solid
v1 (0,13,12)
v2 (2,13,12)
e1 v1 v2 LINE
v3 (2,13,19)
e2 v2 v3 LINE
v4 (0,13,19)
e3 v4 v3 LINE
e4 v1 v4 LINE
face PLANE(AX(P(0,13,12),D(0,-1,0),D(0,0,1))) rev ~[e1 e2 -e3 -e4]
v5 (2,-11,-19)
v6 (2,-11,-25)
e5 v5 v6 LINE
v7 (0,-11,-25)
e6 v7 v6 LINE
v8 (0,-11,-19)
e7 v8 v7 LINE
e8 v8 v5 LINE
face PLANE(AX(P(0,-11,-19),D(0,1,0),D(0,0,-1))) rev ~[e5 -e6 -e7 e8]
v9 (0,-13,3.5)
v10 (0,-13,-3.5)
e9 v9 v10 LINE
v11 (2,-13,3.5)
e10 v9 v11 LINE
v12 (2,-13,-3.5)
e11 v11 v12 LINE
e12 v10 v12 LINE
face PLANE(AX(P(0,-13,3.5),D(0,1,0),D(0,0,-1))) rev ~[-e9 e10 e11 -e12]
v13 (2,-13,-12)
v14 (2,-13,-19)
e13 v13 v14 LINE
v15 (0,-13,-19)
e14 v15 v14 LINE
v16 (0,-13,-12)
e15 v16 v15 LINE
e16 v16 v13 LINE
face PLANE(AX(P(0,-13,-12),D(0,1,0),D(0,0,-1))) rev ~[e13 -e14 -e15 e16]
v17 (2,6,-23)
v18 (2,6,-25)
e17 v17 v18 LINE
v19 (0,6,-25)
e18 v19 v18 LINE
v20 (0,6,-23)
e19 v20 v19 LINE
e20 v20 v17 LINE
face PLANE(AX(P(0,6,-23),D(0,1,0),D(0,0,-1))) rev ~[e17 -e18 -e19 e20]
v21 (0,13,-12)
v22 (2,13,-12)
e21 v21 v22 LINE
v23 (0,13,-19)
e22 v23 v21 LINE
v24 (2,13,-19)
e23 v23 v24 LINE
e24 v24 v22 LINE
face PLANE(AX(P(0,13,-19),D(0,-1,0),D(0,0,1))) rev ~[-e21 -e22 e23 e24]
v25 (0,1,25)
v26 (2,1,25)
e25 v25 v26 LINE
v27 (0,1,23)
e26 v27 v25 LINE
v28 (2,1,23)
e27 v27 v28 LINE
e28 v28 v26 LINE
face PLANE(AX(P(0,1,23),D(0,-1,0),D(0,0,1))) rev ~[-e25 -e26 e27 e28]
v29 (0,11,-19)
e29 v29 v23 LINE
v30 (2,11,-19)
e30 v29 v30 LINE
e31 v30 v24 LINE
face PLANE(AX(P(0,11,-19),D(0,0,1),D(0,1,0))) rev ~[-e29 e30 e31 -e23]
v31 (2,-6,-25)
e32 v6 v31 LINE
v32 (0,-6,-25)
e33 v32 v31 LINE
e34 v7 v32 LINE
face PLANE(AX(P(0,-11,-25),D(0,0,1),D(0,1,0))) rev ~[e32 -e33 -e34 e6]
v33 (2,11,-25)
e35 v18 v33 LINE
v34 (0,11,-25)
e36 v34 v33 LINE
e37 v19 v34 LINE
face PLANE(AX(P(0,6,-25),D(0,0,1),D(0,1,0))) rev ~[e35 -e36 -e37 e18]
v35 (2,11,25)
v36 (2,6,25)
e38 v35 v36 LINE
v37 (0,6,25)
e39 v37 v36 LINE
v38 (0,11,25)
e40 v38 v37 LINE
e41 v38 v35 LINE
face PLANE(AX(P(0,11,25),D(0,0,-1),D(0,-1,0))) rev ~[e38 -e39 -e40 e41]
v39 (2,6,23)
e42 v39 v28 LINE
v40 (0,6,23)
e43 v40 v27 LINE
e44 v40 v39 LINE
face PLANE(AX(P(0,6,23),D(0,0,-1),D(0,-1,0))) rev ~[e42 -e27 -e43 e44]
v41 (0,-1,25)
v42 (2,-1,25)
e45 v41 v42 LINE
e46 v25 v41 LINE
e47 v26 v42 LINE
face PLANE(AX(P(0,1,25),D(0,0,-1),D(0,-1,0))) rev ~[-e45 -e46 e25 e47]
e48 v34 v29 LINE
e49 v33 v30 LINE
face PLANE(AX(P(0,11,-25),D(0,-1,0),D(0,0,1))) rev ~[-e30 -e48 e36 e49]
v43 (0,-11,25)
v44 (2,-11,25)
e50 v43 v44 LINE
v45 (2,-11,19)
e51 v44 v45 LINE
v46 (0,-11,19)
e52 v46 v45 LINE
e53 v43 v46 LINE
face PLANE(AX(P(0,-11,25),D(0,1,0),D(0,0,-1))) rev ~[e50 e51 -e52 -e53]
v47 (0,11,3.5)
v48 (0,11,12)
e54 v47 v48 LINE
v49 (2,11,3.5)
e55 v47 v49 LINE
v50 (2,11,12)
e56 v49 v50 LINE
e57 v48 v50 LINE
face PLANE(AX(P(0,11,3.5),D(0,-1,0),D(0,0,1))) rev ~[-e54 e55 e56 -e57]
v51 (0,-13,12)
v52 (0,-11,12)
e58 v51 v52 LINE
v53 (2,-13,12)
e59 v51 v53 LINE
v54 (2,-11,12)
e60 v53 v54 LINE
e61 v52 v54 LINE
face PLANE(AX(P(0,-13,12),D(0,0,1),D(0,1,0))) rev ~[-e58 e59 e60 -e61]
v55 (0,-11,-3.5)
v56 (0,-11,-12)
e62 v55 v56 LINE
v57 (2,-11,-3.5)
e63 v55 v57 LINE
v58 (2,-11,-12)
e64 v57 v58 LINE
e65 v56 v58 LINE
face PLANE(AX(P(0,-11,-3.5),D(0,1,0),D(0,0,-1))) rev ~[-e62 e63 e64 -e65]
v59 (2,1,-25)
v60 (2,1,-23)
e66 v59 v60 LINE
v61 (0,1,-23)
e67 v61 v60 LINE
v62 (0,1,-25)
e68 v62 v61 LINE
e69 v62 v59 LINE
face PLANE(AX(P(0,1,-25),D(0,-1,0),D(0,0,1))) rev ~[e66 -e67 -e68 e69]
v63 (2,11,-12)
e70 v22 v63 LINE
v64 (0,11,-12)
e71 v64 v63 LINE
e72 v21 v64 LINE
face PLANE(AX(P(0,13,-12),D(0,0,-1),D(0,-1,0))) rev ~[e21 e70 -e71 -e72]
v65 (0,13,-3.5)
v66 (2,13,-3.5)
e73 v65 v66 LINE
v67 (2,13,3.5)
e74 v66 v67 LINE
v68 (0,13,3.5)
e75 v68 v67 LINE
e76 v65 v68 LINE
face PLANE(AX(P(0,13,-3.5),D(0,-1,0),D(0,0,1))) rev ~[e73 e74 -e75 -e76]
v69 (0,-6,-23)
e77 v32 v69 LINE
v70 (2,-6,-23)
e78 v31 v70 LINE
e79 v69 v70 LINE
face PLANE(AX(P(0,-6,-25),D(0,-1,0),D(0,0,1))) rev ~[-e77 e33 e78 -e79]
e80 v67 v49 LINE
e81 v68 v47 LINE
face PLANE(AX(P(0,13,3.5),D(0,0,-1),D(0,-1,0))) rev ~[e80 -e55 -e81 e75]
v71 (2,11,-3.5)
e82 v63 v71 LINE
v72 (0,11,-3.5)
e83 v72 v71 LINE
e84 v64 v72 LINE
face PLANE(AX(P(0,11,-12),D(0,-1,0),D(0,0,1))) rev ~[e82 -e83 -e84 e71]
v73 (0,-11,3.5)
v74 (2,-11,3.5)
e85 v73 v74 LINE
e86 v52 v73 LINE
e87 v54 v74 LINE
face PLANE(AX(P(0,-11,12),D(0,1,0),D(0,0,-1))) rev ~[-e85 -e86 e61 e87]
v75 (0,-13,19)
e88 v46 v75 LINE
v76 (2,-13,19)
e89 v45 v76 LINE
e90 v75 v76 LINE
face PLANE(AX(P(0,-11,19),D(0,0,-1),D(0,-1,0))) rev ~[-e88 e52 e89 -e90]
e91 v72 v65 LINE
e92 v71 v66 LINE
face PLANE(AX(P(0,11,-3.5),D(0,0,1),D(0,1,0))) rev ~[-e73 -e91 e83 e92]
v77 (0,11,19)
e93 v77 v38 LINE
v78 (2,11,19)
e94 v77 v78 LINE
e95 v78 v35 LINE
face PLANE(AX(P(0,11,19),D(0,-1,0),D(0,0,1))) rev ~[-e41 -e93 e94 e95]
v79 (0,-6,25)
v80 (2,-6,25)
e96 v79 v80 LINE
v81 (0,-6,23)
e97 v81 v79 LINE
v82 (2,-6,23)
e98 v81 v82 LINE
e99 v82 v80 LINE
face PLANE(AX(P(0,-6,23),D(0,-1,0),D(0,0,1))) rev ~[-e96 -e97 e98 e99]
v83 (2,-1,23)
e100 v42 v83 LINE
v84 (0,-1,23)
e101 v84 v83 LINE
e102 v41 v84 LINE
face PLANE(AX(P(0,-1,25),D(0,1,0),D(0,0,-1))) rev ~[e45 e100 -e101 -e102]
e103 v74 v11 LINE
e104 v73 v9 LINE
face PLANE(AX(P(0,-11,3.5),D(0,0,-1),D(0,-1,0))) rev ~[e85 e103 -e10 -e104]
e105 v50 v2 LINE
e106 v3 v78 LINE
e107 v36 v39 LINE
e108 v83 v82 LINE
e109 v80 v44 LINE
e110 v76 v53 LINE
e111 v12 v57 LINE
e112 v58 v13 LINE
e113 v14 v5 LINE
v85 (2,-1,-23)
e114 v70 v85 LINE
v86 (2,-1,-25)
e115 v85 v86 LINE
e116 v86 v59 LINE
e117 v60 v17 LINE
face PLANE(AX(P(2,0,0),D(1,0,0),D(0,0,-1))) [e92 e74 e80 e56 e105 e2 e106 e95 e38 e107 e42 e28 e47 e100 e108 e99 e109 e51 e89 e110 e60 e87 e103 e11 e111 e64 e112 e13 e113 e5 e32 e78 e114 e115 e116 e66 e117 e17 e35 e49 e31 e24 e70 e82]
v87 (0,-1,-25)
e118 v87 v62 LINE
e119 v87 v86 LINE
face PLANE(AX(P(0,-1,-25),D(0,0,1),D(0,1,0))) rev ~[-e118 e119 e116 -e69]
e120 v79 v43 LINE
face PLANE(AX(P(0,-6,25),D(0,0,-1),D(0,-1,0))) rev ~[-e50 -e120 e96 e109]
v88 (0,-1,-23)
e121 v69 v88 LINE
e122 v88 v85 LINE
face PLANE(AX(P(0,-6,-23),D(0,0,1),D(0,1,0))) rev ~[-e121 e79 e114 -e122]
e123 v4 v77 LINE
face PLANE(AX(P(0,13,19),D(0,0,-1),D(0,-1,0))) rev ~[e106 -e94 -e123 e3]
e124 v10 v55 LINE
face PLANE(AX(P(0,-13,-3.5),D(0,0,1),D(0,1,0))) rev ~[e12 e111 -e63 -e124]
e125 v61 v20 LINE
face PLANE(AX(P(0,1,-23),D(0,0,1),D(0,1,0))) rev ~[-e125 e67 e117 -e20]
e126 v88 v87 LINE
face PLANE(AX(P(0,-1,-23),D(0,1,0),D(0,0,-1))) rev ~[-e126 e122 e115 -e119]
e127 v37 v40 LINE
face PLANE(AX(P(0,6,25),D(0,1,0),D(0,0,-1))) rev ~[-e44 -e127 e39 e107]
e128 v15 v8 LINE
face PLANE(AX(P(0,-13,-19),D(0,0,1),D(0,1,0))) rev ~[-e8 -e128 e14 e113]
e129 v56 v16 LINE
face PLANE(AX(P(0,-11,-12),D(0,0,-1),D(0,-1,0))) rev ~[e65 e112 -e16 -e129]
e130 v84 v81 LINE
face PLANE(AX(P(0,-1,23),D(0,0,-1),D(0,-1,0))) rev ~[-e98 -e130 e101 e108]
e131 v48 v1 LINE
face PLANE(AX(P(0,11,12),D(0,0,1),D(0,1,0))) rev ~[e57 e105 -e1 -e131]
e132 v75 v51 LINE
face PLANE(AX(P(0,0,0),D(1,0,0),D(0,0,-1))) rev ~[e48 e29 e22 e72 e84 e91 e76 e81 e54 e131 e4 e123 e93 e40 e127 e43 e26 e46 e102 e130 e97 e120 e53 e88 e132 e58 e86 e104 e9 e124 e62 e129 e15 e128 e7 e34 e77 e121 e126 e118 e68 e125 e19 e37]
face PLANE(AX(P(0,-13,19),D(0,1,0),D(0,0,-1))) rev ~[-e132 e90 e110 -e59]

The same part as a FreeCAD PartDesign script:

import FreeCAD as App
import Part
import Sketcher

V = App.Vector
Q = App.Units.Quantity


def add_polygon(sketch, points):
    """Adds a closed chain of lines whose ends are joined by coincident constraints."""
    first, n = sketch.GeometryCount, len(points)
    for a, b in zip(points, points[1:] + points[:1]):
        sketch.addGeometry(Part.LineSegment(App.Vector(*a, 0), App.Vector(*b, 0)), False)
    for i in range(n):
        sketch.addConstraint(Sketcher.Constraint("Coincident", first + i, 2, first + (i + 1) % n, 1))

doc = App.newDocument("Part")
body = doc.addObject("PartDesign::Body", "Body")

sketch1 = body.newObject("Sketcher::SketchObject", "Sketch")
sketch1.AttachmentSupport = (doc.getObject("YZ_Plane"), [""])
sketch1.MapMode = "FlatFace"
add_polygon(sketch1, [(11, 19), (11, 25), (6, 25), (6, 23), (1, 23), (1, 25), (-1, 25), (-1, 23), (-6, 23), (-6, 25), (-11, 25), (-11, 19), (-13, 19), (-13, 12), (-11, 12), (-11, 3.5), (-13, 3.5), (-13, -3.5), (-11, -3.5), (-11, -12), (-13, -12), (-13, -19), (-11, -19), (-11, -25), (-6, -25), (-6, -23), (-1, -23), (-1, -25), (1, -25), (1, -23), (6, -23), (6, -25), (11, -25), (11, -19), (13, -19), (13, -12), (11, -12), (11, -3.5), (13, -3.5), (13, 3.5), (11, 3.5), (11, 12), (13, 12), (13, 19)])
sketch1.addConstraint(Sketcher.Constraint("Vertical", 0))
sketch1.addConstraint(Sketcher.Constraint("Horizontal", 1))
sketch1.addConstraint(Sketcher.Constraint("Vertical", 2))
sketch1.addConstraint(Sketcher.Constraint("Horizontal", 3))
sketch1.addConstraint(Sketcher.Constraint("Vertical", 4))
sketch1.addConstraint(Sketcher.Constraint("Horizontal", 5))
sketch1.addConstraint(Sketcher.Constraint("Vertical", 6))
sketch1.addConstraint(Sketcher.Constraint("Horizontal", 7))
sketch1.addConstraint(Sketcher.Constraint("Vertical", 8))
sketch1.addConstraint(Sketcher.Constraint("Horizontal", 9))
sketch1.addConstraint(Sketcher.Constraint("Vertical", 10))
sketch1.addConstraint(Sketcher.Constraint("Horizontal", 11))
sketch1.addConstraint(Sketcher.Constraint("Vertical", 12))
sketch1.addConstraint(Sketcher.Constraint("Horizontal", 13))
sketch1.addConstraint(Sketcher.Constraint("Vertical", 14))
sketch1.addConstraint(Sketcher.Constraint("Horizontal", 15))
sketch1.addConstraint(Sketcher.Constraint("Vertical", 16))
sketch1.addConstraint(Sketcher.Constraint("Horizontal", 17))
sketch1.addConstraint(Sketcher.Constraint("Vertical", 18))
sketch1.addConstraint(Sketcher.Constraint("Horizontal", 19))
sketch1.addConstraint(Sketcher.Constraint("Vertical", 20))
sketch1.addConstraint(Sketcher.Constraint("Horizontal", 21))
sketch1.addConstraint(Sketcher.Constraint("Vertical", 22))
sketch1.addConstraint(Sketcher.Constraint("Horizontal", 23))
sketch1.addConstraint(Sketcher.Constraint("Vertical", 24))
sketch1.addConstraint(Sketcher.Constraint("Horizontal", 25))
sketch1.addConstraint(Sketcher.Constraint("Vertical", 26))
sketch1.addConstraint(Sketcher.Constraint("Horizontal", 27))
sketch1.addConstraint(Sketcher.Constraint("Vertical", 28))
sketch1.addConstraint(Sketcher.Constraint("Horizontal", 29))
sketch1.addConstraint(Sketcher.Constraint("Vertical", 30))
sketch1.addConstraint(Sketcher.Constraint("Horizontal", 31))
sketch1.addConstraint(Sketcher.Constraint("Vertical", 32))
sketch1.addConstraint(Sketcher.Constraint("Horizontal", 33))
sketch1.addConstraint(Sketcher.Constraint("Vertical", 34))
sketch1.addConstraint(Sketcher.Constraint("Horizontal", 35))
sketch1.addConstraint(Sketcher.Constraint("Vertical", 36))
sketch1.addConstraint(Sketcher.Constraint("Horizontal", 37))
sketch1.addConstraint(Sketcher.Constraint("Vertical", 38))
sketch1.addConstraint(Sketcher.Constraint("Horizontal", 39))
sketch1.addConstraint(Sketcher.Constraint("Vertical", 40))
sketch1.addConstraint(Sketcher.Constraint("Horizontal", 41))
sketch1.addConstraint(Sketcher.Constraint("Vertical", 42))
sketch1.addConstraint(Sketcher.Constraint("Horizontal", 43))
sketch1.addConstraint(Sketcher.Constraint("Symmetric", 0, 2, 22, 2, -1, 1))
sketch1.addConstraint(Sketcher.Constraint("Symmetric", 2, 2, 24, 2, -1, 1))
sketch1.addConstraint(Sketcher.Constraint("Symmetric", 4, 2, 26, 2, -1, 1))
sketch1.addConstraint(Sketcher.Constraint("Symmetric", 6, 2, 28, 2, -1, 1))
sketch1.addConstraint(Sketcher.Constraint("Symmetric", 8, 2, 30, 2, -1, 1))
sketch1.addConstraint(Sketcher.Constraint("Symmetric", 10, 2, 32, 2, -1, 1))
sketch1.addConstraint(Sketcher.Constraint("Symmetric", 12, 2, 34, 2, -1, 1))
sketch1.addConstraint(Sketcher.Constraint("Symmetric", 14, 2, 36, 2, -1, 1))
sketch1.addConstraint(Sketcher.Constraint("Symmetric", 16, 2, 38, 2, -1, 1))
sketch1.addConstraint(Sketcher.Constraint("Symmetric", 18, 2, 40, 2, -1, 1))
sketch1.addConstraint(Sketcher.Constraint("Symmetric", 20, 2, 42, 2, -1, 1))
sketch1.addConstraint(Sketcher.Constraint("Symmetric", 3, 2, 6, 2, -2))
sketch1.addConstraint(Sketcher.Constraint("Symmetric", 1, 2, 8, 2, -2))
sketch1.addConstraint(Sketcher.Constraint("Symmetric", 21, 2, 32, 2, -2))
sketch1.addConstraint(Sketcher.Constraint("Symmetric", 19, 2, 34, 2, -2))
sketch1.addConstraint(Sketcher.Constraint("Symmetric", 17, 2, 36, 2, -2))
sketch1.addConstraint(Sketcher.Constraint("Horizontal", 1, 2, 4, 2))
sketch1.addConstraint(Sketcher.Constraint("Vertical", 10, 2, 13, 2))
sketch1.addConstraint(Sketcher.Constraint("Vertical", 12, 2, 15, 2))
sketch1.addConstraint(Sketcher.Constraint("Equal", 1, 3))
sketch1.addConstraint(Sketcher.Constraint("Equal", 5, 11))
sketch1.addConstraint(Sketcher.Constraint("Equal", 43, 2))
sketch1.addConstraint(Sketcher.Constraint("Equal", 12, 16))
sketch1.addConstraint(Sketcher.Constraint("DistanceX", 1, 2, 1, 1, Q("5 mm")))
sketch1.addConstraint(Sketcher.Constraint("DistanceX", 5, 2, 5, 1, Q("2 mm")))
sketch1.addConstraint(Sketcher.Constraint("DistanceY", 0, 1, 0, 2, Q("6 mm")))
sketch1.addConstraint(Sketcher.Constraint("DistanceY", 12, 2, 12, 1, Q("7 mm")))
sketch1.addConstraint(Sketcher.Constraint("DistanceY", 14, 2, 14, 1, Q("8.5 mm")))
pad1 = body.newObject("PartDesign::Pad", "Pad")
pad1.Profile = sketch1
pad1.Length = 2

doc.recompute()
